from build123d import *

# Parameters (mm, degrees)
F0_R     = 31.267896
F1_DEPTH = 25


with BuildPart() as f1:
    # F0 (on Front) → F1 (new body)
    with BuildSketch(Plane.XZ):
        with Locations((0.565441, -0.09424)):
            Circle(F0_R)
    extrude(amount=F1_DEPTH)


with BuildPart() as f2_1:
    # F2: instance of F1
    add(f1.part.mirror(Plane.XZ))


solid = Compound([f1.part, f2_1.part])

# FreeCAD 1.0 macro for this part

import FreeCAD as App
import Part
import Sketcher
from FreeCAD import Vector
Q = App.Units.Quantity

doc = App.newDocument("Part")
body = doc.addObject("PartDesign::Body", "Body")

# Sketch on XZ plane
sketch1 = doc.addObject("Sketcher::SketchObject", "Sketch")
body.addObject(sketch1)
sketch1.AttachmentSupport = (doc.XZ_Plane, [""])
sketch1.MapMode = "FlatFace"
sketch1.addGeometry(Part.Circle(Vector(1, 0, 0), Vector(0, 0, 1), 31), False)
sketch1.addConstraint(Sketcher.Constraint("Diameter", 0, Q("62.535792 mm")))
sketch1.addConstraint(Sketcher.Constraint("DistanceX", -1, 1, 0, 3, Q("0.565441 mm")))
sketch1.addConstraint(Sketcher.Constraint("DistanceY", 0, 3, -1, 1, Q("0.09424 mm")))
pad1 = doc.addObject("PartDesign::Pad", "Pad")
body.addObject(pad1)
pad1.Profile = sketch1
pad1.Length = 25
body2 = doc.addObject("PartDesign::Body", "Body001")
doc.recompute()

mirroring = doc.addObject("Part::Mirroring", "Mirroring")
mirroring.Source = body
mirroring.Base = Vector(0, 0, 0)
mirroring.Normal = Vector(0, -1, 0)
body2.BaseFeature = mirroring
doc.recompute()
mirroring.Visibility = False

doc.recompute()
